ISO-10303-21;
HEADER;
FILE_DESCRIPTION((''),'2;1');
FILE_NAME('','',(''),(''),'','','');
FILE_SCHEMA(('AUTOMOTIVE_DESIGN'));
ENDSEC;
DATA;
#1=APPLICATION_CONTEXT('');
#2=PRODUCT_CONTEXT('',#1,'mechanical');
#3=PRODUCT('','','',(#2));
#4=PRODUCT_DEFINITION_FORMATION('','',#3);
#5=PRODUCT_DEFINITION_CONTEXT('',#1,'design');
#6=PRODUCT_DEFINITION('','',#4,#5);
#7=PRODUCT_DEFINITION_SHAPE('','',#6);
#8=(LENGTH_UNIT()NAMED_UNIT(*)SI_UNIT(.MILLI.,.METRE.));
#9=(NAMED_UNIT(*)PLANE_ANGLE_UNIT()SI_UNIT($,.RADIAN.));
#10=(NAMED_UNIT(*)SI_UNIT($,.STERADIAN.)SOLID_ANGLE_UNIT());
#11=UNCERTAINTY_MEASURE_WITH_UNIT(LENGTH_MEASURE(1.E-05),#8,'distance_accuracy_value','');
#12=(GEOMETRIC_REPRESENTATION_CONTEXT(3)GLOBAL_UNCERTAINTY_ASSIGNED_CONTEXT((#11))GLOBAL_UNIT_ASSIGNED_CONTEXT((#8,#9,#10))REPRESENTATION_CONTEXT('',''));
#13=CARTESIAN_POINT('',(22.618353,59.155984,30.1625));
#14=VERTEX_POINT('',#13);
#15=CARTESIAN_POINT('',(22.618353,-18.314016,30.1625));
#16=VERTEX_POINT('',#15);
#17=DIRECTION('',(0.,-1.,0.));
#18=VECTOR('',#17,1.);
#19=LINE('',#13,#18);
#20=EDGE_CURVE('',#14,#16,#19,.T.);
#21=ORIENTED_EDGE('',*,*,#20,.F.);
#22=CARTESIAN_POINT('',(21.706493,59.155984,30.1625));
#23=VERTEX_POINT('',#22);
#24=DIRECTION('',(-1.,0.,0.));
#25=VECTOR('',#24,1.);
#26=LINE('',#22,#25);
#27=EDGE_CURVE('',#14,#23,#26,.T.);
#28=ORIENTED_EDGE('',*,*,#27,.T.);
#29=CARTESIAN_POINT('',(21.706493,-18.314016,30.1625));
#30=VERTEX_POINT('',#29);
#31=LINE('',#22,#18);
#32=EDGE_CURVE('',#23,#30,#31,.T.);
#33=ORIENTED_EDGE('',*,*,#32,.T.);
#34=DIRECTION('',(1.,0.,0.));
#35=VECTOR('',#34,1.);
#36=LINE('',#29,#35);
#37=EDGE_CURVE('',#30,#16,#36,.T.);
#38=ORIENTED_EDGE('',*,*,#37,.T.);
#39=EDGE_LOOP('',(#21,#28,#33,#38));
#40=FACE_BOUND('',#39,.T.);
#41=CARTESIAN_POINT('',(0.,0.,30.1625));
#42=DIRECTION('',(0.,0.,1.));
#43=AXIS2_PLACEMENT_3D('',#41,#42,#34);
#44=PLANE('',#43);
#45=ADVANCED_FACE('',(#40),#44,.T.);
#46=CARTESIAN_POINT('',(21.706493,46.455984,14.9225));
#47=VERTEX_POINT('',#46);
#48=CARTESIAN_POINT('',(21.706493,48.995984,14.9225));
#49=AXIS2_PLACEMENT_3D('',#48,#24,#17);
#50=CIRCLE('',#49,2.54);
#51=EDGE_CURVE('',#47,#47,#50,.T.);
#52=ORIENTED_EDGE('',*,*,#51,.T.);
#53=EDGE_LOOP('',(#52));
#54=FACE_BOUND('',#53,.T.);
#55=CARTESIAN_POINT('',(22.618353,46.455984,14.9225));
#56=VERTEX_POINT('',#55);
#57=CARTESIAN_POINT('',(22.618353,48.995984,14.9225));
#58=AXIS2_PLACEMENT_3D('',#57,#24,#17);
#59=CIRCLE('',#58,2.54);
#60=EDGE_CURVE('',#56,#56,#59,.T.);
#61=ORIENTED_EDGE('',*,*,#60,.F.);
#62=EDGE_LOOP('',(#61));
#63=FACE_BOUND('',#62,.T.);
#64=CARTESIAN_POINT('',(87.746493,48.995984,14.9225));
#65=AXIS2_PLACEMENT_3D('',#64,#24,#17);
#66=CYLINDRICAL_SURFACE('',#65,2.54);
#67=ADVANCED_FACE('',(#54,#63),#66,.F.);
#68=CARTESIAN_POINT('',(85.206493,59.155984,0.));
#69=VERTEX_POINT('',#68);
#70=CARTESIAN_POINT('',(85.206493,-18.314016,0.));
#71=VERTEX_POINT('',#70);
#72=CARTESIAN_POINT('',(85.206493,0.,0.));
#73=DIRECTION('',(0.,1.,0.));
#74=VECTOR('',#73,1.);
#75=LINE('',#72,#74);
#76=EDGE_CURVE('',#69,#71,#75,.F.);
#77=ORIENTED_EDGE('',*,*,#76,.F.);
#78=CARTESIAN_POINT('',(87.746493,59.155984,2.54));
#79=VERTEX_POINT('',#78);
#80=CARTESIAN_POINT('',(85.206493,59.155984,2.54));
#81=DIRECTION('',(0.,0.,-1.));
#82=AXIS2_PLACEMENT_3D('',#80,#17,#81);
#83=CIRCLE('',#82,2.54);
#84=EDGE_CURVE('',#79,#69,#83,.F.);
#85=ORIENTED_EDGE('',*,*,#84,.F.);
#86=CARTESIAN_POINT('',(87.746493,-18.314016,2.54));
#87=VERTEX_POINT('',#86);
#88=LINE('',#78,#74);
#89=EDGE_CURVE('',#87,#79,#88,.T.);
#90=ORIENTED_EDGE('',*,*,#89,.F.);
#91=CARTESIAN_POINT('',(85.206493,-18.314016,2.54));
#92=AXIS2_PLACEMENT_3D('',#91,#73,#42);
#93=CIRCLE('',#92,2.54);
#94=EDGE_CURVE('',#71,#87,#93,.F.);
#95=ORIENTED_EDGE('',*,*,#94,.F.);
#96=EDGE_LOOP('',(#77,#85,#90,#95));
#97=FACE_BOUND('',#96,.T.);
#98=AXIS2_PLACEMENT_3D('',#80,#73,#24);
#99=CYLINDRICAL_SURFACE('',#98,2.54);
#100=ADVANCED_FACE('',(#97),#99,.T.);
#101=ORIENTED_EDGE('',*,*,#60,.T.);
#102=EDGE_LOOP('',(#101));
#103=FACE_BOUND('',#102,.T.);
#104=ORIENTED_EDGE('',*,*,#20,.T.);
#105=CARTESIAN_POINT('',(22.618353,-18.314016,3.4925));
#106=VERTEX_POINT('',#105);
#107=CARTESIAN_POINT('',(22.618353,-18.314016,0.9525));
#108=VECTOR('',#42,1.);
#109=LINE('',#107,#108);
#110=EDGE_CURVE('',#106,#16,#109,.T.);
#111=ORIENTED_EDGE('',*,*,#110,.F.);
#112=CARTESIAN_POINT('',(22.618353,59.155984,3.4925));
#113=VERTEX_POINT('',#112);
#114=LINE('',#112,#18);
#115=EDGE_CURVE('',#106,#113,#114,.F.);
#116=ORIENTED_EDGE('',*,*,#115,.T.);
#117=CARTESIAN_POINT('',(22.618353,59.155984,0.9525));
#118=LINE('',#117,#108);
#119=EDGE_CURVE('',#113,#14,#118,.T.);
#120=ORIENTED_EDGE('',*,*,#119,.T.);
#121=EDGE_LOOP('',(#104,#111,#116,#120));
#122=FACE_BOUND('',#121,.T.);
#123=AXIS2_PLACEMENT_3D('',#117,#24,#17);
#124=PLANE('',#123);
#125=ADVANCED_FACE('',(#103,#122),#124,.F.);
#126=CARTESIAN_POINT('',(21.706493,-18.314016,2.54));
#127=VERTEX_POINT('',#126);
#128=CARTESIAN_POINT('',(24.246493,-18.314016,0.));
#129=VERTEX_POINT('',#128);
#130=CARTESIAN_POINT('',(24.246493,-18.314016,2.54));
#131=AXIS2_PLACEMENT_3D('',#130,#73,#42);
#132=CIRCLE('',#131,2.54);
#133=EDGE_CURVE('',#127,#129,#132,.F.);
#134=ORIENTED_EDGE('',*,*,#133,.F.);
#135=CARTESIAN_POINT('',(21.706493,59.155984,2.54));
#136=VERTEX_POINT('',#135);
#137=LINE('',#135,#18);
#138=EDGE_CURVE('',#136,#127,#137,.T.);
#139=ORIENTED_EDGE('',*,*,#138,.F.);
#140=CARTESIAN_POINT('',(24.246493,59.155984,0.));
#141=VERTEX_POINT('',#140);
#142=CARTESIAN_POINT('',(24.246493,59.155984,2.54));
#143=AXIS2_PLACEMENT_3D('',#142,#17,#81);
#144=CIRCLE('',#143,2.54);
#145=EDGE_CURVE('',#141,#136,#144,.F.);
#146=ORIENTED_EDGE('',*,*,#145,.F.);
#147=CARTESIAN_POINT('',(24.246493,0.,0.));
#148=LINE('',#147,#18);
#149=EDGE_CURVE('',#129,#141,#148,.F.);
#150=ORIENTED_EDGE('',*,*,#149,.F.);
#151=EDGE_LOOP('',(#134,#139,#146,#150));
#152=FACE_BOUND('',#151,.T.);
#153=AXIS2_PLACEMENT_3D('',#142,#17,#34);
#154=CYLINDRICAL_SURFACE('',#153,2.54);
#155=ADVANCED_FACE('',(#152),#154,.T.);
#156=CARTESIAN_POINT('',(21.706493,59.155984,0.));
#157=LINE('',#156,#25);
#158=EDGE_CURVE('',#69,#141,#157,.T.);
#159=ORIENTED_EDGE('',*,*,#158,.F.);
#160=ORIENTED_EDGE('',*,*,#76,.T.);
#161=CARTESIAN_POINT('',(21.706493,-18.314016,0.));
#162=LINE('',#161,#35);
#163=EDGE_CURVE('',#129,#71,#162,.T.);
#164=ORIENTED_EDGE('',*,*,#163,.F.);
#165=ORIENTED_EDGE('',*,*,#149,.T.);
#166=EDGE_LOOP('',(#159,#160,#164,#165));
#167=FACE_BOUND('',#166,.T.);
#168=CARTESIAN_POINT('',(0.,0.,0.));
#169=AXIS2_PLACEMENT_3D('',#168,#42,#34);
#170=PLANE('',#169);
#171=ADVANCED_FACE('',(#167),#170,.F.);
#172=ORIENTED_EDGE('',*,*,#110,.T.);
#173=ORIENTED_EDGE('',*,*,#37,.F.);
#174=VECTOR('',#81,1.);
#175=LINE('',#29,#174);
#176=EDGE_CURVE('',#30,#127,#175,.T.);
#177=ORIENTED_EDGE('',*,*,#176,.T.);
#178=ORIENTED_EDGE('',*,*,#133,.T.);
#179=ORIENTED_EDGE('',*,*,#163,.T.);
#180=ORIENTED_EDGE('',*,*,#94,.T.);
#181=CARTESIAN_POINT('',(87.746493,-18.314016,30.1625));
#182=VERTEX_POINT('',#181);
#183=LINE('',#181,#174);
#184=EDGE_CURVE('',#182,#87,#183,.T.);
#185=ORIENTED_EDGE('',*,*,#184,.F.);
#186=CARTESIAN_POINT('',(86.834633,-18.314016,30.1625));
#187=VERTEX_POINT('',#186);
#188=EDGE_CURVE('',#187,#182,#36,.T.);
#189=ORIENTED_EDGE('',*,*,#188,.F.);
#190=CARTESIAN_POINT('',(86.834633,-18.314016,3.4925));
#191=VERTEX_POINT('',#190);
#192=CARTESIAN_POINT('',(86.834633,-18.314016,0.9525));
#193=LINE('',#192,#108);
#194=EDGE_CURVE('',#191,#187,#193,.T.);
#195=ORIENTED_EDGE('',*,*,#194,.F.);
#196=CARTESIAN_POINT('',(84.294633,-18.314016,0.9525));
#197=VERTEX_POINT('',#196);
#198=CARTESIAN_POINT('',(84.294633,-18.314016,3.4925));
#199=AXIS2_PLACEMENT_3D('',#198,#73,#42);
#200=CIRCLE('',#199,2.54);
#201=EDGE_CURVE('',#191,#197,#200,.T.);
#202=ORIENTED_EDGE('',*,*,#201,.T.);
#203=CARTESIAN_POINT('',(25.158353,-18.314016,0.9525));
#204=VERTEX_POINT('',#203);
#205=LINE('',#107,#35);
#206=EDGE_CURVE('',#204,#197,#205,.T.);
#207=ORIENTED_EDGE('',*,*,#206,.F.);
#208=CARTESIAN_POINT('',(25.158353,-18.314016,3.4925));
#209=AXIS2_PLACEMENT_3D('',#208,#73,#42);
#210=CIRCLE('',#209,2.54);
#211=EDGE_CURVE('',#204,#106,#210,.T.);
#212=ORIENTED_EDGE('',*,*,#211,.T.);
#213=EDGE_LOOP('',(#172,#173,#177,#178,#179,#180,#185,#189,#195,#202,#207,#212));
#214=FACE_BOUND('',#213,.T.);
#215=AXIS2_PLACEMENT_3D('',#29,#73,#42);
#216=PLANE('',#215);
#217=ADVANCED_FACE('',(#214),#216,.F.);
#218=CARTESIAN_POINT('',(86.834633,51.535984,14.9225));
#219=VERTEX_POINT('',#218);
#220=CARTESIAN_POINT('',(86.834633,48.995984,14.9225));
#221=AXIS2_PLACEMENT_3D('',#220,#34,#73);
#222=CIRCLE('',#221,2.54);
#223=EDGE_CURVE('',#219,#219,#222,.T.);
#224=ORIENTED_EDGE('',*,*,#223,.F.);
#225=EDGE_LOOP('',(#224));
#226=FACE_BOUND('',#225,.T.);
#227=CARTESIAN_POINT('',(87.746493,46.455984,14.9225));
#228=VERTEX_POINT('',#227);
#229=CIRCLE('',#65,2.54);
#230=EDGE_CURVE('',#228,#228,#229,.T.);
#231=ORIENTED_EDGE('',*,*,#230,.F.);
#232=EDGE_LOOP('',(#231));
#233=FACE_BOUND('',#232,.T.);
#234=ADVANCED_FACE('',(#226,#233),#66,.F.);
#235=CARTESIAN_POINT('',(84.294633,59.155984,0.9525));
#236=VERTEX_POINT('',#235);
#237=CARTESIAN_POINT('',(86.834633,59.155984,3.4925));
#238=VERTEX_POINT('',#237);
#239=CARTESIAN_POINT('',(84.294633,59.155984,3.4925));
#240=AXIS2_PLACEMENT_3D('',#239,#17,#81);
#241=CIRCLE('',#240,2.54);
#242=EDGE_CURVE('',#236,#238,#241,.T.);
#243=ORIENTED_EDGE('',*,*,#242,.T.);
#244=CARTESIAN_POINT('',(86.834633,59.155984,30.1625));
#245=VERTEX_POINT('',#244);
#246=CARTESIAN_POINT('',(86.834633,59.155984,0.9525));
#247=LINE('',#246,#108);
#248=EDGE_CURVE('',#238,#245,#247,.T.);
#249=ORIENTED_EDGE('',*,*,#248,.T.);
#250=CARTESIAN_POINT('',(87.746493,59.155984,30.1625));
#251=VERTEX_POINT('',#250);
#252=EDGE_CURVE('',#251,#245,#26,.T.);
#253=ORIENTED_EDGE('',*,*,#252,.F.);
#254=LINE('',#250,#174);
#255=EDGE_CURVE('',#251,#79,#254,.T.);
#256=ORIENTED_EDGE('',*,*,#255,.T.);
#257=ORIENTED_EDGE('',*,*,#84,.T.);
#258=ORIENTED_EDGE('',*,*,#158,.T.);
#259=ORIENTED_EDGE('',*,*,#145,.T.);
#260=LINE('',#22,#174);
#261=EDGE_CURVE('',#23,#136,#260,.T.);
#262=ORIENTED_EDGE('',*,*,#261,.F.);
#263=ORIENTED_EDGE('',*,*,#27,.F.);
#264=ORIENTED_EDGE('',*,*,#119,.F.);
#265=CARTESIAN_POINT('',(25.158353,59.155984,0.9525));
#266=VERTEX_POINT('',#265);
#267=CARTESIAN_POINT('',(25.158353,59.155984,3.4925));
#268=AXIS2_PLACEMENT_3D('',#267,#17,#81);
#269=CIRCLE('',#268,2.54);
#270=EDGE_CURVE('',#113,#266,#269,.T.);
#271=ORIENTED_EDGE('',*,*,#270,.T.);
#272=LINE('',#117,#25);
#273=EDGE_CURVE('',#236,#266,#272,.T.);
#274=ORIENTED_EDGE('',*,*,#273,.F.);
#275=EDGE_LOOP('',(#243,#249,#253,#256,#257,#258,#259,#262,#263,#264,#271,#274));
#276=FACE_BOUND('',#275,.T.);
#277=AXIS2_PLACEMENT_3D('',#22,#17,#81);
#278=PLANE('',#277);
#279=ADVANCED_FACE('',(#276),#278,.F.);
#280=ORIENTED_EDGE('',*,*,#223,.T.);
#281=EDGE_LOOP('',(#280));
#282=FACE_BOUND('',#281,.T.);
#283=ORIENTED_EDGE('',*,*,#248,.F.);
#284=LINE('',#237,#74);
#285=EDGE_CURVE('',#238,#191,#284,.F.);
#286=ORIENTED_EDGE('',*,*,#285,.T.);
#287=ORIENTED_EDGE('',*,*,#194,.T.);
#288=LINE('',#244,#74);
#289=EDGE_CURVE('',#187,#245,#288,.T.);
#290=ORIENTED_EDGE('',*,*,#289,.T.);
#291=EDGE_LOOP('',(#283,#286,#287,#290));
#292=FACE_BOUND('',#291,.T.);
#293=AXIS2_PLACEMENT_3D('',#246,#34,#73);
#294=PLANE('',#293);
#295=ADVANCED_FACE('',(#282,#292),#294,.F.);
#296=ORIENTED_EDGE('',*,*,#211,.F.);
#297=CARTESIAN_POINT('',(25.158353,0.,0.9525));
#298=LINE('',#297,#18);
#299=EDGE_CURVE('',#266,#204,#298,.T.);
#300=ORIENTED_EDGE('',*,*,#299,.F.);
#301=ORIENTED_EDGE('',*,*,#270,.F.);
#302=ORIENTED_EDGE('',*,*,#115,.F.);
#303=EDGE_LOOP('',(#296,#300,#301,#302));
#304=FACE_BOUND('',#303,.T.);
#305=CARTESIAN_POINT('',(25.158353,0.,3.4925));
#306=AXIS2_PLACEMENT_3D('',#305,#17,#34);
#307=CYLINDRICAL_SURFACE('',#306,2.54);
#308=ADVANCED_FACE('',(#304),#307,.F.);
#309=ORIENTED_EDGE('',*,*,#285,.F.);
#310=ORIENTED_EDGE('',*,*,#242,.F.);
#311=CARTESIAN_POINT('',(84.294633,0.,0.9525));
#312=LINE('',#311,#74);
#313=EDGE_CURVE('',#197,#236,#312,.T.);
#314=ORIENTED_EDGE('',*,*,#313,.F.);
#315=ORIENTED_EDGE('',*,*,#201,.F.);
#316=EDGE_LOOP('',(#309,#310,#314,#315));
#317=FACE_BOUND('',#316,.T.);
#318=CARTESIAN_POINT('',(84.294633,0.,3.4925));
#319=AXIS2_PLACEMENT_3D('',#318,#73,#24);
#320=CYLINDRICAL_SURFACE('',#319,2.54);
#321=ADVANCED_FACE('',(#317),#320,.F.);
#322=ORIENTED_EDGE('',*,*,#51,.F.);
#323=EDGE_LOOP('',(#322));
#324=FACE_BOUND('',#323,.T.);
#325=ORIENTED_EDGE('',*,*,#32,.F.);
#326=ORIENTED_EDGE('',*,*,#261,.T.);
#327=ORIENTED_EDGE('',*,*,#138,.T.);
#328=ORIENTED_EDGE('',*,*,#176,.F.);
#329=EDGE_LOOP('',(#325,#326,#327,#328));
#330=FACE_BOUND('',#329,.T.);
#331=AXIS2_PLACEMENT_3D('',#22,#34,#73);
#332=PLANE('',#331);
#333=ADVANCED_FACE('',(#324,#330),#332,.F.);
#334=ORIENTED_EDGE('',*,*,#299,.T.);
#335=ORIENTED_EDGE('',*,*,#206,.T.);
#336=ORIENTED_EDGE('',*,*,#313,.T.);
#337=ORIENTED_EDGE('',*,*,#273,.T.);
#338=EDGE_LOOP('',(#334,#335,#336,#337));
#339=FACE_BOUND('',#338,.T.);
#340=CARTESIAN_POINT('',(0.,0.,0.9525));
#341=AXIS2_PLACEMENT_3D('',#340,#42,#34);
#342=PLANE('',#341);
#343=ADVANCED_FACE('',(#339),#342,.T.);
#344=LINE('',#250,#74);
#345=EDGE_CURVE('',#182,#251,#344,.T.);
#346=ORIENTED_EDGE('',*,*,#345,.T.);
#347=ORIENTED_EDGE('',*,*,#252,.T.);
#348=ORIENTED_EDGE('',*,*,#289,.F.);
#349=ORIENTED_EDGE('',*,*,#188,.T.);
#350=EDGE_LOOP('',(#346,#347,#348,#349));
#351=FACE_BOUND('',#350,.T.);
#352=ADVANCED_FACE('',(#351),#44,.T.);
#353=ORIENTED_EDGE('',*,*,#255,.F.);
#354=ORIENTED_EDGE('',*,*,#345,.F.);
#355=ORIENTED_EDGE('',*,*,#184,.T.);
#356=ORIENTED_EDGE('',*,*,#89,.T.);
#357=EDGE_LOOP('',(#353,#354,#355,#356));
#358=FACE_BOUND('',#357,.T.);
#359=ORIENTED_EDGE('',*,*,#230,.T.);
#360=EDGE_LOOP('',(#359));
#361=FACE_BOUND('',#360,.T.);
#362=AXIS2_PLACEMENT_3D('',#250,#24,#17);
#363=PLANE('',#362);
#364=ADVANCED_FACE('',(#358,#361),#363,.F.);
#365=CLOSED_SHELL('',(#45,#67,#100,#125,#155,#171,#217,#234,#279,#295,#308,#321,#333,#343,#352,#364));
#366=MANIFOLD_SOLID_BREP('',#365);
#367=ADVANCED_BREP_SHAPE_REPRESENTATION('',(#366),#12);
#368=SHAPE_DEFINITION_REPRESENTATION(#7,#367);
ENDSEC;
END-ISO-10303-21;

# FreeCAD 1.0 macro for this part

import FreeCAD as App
import Part
import Sketcher
from FreeCAD import Vector
Q = App.Units.Quantity


def edges_at(feature, points):
    """Names of the edges that pass closest to the given points."""
    edges = feature.Shape.Edges
    near = lambda p: min(range(len(edges)), key=lambda i: edges[i].distToShape(Part.Vertex(*p))[0])
    return sorted({f"Edge{near(p) + 1}" for p in points})


def add_polygon(sketch, points):
    """Adds a closed chain of lines whose ends are joined by coincident constraints."""
    first, n = sketch.GeometryCount, len(points)
    for a, b in zip(points, points[1:] + points[:1]):
        sketch.addGeometry(Part.LineSegment(App.Vector(*a, 0), App.Vector(*b, 0)), False)
    for i in range(n):
        sketch.addConstraint(Sketcher.Constraint("Coincident", first + i, 2, first + (i + 1) % n, 1))

doc = App.newDocument("Part")
params = doc.addObject("Spreadsheet::Sheet", "Params")
for row, (alias, value) in enumerate([
    ("sketch1_width", "2.6 in"),
    ("sketch1_height", "3.05 in"),
    ("pad1_length", "1.1875 in"),
    ("sketch2_height", "3.05 in"),
    ("pocket1_length", "1.15 in"),
    ("fillet_radius", "0.1 in"),
    ("fillet2_radius", "0.1 in"),
    ("fillet3_radius", "0.1 in"),
    ("fillet4_radius", "0.1 in"),
    ("sketch3_diameter", "0.2 in"),
], start=1):
    params.set(f"A{row}", alias)
    params.set(f"B{row}", "=" + value)
    params.setAlias(f"B{row}", alias)

body = doc.addObject("PartDesign::Body", "Body")

sketch1 = body.newObject("Sketcher::SketchObject", "Sketch")
sketch1.AttachmentSupport = (doc.getObject("XY_Plane"), [""])
sketch1.MapMode = "FlatFace"
add_polygon(sketch1, [(21.706493, 59.155984), (21.706493, -18.314016), (87.746493, -18.314016), (87.746493, 59.155984)])
sketch1.addConstraint([
    Sketcher.Constraint("Vertical", 0),
    Sketcher.Constraint("Horizontal", 1),
    Sketcher.Constraint("Vertical", 2),
    Sketcher.Constraint("Horizontal", 3),
    Sketcher.Constraint("DistanceX", 1, 1, 1, 2, Q("2.6 in")),
    Sketcher.Constraint("DistanceY", 0, 2, 0, 1, Q("3.05 in")),
    Sketcher.Constraint("DistanceX", -1, 1, 0, 2, Q("21.706493 mm")),
    Sketcher.Constraint("DistanceY", 0, 2, -1, 1, Q("18.314016 mm")),
])
sketch1.setExpression("Constraints[8]", "Params.sketch1_width")
sketch1.setExpression("Constraints[9]", "Params.sketch1_height")
pad1 = body.newObject("PartDesign::Pad", "Pad")
pad1.Profile = sketch1
pad1.setExpression("Length", "Params.pad1_length")

sketch2 = body.newObject("Sketcher::SketchObject", "Sketch001")
sketch2.AttachmentSupport = (doc.getObject("XY_Plane"), [""])
sketch2.MapMode = "FlatFace"
sketch2.AttachmentOffset = App.Placement(Vector(0, 0, 1.1875 * 25.4), App.Rotation())
add_polygon(sketch2, [(22.618353, 59.155984), (22.618353, -18.314016), (86.834633, -18.314016), (86.834633, 59.155984)])
sketch2.addConstraint([
    Sketcher.Constraint("Vertical", 0),
    Sketcher.Constraint("Horizontal", 1),
    Sketcher.Constraint("Vertical", 2),
    Sketcher.Constraint("Horizontal", 3),
    Sketcher.Constraint("DistanceY", 0, 2, 0, 1, Q("3.05 in")),
    Sketcher.Constraint("DistanceX", 1, 1, 1, 2, Q("2.5282 in")),
    Sketcher.Constraint("DistanceX", -1, 1, 0, 2, Q("22.618353 mm")),
    Sketcher.Constraint("DistanceY", 0, 2, -1, 1, Q("18.314016 mm")),
])
sketch2.setExpression("Constraints[8]", "Params.sketch2_height")
pocket1 = body.newObject("PartDesign::Pocket", "Pocket")
pocket1.Profile = sketch2
pocket1.setExpression("Length", "Params.pocket1_length")
doc.recompute()

fillet = body.newObject("PartDesign::Fillet", "Fillet")
fillet.Base = (pocket1, edges_at(pocket1, [(21.706, 20.421, 0)]))
fillet.setExpression("Radius", "Params.fillet_radius")
doc.recompute()

fillet2 = body.newObject("PartDesign::Fillet", "Fillet001")
fillet2.Base = (fillet, edges_at(fillet, [(87.746, 20.421, 0)]))
fillet2.setExpression("Radius", "Params.fillet2_radius")
doc.recompute()

fillet3 = body.newObject("PartDesign::Fillet", "Fillet002")
fillet3.Base = (fillet2, edges_at(fillet2, [(22.618, 20.421, 0.953)]))
fillet3.setExpression("Radius", "Params.fillet3_radius")
doc.recompute()

fillet4 = body.newObject("PartDesign::Fillet", "Fillet003")
fillet4.Base = (fillet3, edges_at(fillet3, [(86.835, 20.421, 0.953)]))
fillet4.setExpression("Radius", "Params.fillet4_radius")

sketch3 = body.newObject("Sketcher::SketchObject", "Sketch002")
sketch3.AttachmentSupport = (doc.getObject("YZ_Plane"), [""])
sketch3.MapMode = "FlatFace"
sketch3.AttachmentOffset = App.Placement(Vector(0, 0, 21.706493), App.Rotation())
sketch3.addGeometry(Part.Circle(Vector(48.995984, 14.9225, 0), Vector(0, 0, 1), 2.54), False)
sketch3.addConstraint([
    Sketcher.Constraint("Diameter", 0, Q("0.2 in")),
    Sketcher.Constraint("DistanceY", -1, 1, 0, 3, Q("0.5875 in")),
    Sketcher.Constraint("DistanceX", -1, 1, 0, 3, Q("48.995984 mm")),
])
sketch3.setExpression("Constraints[0]", "Params.sketch3_diameter")
pocket2 = body.newObject("PartDesign::Pocket", "Pocket001")
pocket2.Profile = sketch3
pocket2.Type = "ThroughAll"
pocket2.Reversed = True

doc.recompute()
